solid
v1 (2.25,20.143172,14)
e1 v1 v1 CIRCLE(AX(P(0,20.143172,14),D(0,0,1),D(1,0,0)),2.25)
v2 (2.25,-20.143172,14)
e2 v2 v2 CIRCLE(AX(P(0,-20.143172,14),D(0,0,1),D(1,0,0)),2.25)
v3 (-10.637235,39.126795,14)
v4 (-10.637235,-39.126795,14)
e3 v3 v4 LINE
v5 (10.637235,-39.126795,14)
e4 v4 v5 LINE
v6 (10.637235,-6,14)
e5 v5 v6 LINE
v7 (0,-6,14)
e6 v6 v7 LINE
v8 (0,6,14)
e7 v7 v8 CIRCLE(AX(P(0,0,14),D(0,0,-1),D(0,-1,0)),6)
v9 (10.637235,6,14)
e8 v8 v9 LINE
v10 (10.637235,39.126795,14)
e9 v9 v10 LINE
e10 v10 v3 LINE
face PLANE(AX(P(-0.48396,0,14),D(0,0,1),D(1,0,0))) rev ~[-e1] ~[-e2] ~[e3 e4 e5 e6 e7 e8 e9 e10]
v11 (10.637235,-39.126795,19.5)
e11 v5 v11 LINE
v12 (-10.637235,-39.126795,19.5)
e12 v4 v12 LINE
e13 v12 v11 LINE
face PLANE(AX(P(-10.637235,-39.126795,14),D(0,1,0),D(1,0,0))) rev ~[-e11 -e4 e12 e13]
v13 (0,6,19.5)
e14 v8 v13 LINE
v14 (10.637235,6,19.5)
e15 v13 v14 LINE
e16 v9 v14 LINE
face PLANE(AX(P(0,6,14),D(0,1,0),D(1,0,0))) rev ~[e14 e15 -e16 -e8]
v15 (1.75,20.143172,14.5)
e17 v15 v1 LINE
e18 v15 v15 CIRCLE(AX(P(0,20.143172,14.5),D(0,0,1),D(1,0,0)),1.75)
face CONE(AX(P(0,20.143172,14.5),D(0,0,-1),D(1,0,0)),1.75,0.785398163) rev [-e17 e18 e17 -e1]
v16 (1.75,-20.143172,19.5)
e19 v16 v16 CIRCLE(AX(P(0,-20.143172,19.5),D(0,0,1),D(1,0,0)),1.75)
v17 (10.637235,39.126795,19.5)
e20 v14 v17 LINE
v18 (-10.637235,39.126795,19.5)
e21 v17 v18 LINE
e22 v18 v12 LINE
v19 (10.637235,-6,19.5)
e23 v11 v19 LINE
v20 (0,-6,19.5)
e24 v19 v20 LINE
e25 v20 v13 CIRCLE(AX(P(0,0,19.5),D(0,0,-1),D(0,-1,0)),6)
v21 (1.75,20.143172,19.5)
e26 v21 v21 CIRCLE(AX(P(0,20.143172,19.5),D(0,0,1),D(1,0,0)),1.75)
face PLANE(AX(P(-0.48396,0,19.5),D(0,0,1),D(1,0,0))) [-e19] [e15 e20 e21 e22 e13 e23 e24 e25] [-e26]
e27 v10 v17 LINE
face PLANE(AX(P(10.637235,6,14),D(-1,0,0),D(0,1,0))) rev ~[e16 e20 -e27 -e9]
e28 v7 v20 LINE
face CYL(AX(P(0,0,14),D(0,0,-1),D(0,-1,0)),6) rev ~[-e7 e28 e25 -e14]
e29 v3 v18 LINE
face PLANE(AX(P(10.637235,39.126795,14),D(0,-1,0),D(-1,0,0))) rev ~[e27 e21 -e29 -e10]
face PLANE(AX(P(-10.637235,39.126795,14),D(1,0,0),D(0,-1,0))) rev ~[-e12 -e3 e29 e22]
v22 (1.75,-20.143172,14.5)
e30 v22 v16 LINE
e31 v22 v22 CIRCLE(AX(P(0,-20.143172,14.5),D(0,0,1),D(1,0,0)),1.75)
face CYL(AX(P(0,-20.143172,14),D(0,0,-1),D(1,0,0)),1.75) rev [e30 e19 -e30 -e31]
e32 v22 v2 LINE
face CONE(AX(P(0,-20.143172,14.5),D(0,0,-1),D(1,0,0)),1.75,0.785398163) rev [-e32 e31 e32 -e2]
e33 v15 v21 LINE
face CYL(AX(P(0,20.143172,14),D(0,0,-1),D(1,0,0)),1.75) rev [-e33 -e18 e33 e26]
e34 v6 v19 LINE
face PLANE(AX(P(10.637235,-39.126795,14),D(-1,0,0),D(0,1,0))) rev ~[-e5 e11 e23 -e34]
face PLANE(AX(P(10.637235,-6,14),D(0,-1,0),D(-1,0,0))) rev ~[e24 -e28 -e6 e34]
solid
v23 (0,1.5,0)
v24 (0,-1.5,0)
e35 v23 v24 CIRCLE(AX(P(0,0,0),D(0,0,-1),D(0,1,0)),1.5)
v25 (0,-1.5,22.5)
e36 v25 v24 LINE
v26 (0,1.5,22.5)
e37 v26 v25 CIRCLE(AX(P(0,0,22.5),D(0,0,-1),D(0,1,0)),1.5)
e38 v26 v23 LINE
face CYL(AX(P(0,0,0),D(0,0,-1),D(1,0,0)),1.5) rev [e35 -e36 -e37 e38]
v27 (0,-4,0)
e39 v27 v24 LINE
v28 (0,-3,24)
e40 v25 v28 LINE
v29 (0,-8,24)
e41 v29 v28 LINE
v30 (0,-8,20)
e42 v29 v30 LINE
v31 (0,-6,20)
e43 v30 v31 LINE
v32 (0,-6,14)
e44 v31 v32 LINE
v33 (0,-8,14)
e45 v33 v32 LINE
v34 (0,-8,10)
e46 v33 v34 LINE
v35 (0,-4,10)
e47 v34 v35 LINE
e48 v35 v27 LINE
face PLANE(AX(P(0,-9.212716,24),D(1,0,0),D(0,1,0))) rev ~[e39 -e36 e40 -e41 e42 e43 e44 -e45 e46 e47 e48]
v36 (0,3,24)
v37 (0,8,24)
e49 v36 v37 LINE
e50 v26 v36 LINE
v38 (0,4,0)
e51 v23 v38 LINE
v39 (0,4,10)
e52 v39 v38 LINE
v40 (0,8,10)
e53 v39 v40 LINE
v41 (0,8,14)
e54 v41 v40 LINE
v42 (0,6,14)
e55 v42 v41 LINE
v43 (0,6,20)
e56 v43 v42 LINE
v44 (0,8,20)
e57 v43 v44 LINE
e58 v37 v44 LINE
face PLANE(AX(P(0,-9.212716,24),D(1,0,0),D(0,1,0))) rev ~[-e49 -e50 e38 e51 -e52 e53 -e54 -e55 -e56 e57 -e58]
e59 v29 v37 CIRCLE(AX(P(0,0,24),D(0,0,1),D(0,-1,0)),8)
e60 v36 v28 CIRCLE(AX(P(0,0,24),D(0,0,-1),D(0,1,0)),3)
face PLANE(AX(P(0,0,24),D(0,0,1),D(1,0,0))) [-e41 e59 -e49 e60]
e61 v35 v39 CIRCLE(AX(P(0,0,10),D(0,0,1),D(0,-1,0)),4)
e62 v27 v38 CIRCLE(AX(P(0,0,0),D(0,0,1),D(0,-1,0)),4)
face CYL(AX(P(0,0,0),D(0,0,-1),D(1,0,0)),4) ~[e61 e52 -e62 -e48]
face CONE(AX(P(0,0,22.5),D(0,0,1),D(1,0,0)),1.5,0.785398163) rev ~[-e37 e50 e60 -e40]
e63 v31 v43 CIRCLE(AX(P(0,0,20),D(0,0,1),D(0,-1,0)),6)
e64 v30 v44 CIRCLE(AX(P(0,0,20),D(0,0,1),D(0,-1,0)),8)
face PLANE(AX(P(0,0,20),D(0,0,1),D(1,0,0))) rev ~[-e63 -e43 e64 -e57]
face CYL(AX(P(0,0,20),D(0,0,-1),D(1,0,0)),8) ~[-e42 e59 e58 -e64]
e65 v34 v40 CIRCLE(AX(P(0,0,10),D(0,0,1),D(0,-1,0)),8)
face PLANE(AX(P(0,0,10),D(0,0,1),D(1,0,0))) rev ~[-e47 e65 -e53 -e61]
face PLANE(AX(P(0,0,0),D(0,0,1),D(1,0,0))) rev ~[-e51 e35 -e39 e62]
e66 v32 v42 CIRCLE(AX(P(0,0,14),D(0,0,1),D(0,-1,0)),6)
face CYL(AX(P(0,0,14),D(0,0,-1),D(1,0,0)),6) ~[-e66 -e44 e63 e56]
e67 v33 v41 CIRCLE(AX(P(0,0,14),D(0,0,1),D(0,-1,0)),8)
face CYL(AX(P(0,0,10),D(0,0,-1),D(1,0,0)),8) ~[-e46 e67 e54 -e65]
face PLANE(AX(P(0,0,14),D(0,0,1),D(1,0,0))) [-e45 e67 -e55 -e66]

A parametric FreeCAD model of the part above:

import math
import FreeCAD as App
import Part
import Sketcher


def edges_at(feature, points):
    """Names of the edges that pass closest to the given points."""
    edges = feature.Shape.Edges
    near = lambda p: min(range(len(edges)), key=lambda i: edges[i].distToShape(Part.Vertex(*p))[0])
    return sorted({f"Edge{near(p) + 1}" for p in points})

doc = App.newDocument("Part")
body = doc.addObject("PartDesign::Body", "Body")

sketch1 = body.newObject("Sketcher::SketchObject", "Sketch")
sketch1.AttachmentSupport = (doc.getObject("XY_Plane"), [""])
sketch1.MapMode = "FlatFace"
sketch1.addGeometry(Part.Circle(App.Vector(0, 0, 0), App.Vector(0, 0, 1), 4), False)
sketch1.addConstraint([
    Sketcher.Constraint("Coincident", 0, 3, -1, 1),
    Sketcher.Constraint("Diameter", 0, 8.0),
])
pad1 = body.newObject("PartDesign::Pad", "Pad")
pad1.Profile = sketch1
pad1.Length = 10

sketch2 = body.newObject("Sketcher::SketchObject", "Sketch001")
sketch2.AttachmentSupport = (doc.getObject("XY_Plane"), [""])
sketch2.MapMode = "FlatFace"
sketch2.AttachmentOffset = App.Placement(App.Vector(0, 0, 10), App.Rotation())
sketch2.addGeometry(Part.Circle(App.Vector(0, 0, 0), App.Vector(0, 0, 1), 8), False)
sketch2.addConstraint([
    Sketcher.Constraint("Coincident", 0, 3, -1, 1),
    Sketcher.Constraint("Diameter", 0, 16.0),
])
pad2 = body.newObject("PartDesign::Pad", "Pad001")
pad2.Profile = sketch2
pad2.Length = 4

sketch3 = body.newObject("Sketcher::SketchObject", "Sketch002")
sketch3.AttachmentSupport = (doc.getObject("XY_Plane"), [""])
sketch3.MapMode = "FlatFace"
sketch3.AttachmentOffset = App.Placement(App.Vector(0, 0, 14), App.Rotation())
sketch3.addGeometry(Part.Circle(App.Vector(0, 0, 0), App.Vector(0, 0, 1), 6), False)
sketch3.addConstraint([
    Sketcher.Constraint("Coincident", 0, 3, -1, 1),
    Sketcher.Constraint("Diameter", 0, 12.0),
])
pad3 = body.newObject("PartDesign::Pad", "Pad002")
pad3.Profile = sketch3
pad3.Length = 6

sketch4 = body.newObject("Sketcher::SketchObject", "Sketch003")
sketch4.AttachmentSupport = (doc.getObject("XY_Plane"), [""])
sketch4.MapMode = "FlatFace"
sketch4.AttachmentOffset = App.Placement(App.Vector(0, 0, 20), App.Rotation())
sketch4.addGeometry(Part.Circle(App.Vector(0, 0, 0), App.Vector(0, 0, 1), 8), False)
sketch4.addConstraint([
    Sketcher.Constraint("Coincident", 0, 3, -1, 1),
    Sketcher.Constraint("Diameter", 0, 16.0),
])
pad4 = body.newObject("PartDesign::Pad", "Pad003")
pad4.Profile = sketch4
pad4.Length = 4

sketch5 = body.newObject("Sketcher::SketchObject", "Sketch004")
sketch5.AttachmentSupport = (doc.getObject("XY_Plane"), [""])
sketch5.MapMode = "FlatFace"
sketch5.addGeometry(Part.Circle(App.Vector(0, 0, 0), App.Vector(0, 0, 1), 1.5), False)
sketch5.addConstraint([
    Sketcher.Constraint("Coincident", 0, 3, -1, 1),
    Sketcher.Constraint("Diameter", 0, 3.0),
])
pocket1 = body.newObject("PartDesign::Pocket", "Pocket")
pocket1.Profile = sketch5
pocket1.Type = "ThroughAll"
pocket1.Reversed = True
doc.recompute()

chamfer = body.newObject("PartDesign::Chamfer", "Chamfer")
chamfer.Base = (pocket1, edges_at(pocket1, [(-1.5, 0, 24)]))
chamfer.Size = 1.5
body2 = doc.addObject("PartDesign::Body", "Body001")

sketch6 = body2.newObject("Sketcher::SketchObject", "Sketch005")
sketch6.AttachmentSupport = (doc.getObject("XY_Plane001"), [""])
sketch6.MapMode = "FlatFace"
sketch6.AttachmentOffset = App.Placement(App.Vector(0, 0, 14), App.Rotation())
sketch6.addGeometry([
    Part.LineSegment(App.Vector(-10.6, 39.1, 0), App.Vector(-10.6, -39.1, 0)),
    Part.LineSegment(App.Vector(-10.6, -39.1, 0), App.Vector(10.6, -39.1, 0)),
    Part.LineSegment(App.Vector(10.6, -39.1, 0), App.Vector(10.6, -6, 0)),
    Part.LineSegment(App.Vector(10.6, -6, 0), App.Vector(0, -6, 0)),
    Part.ArcOfCircle(Part.Circle(App.Vector(0, 0, 0), App.Vector(0, 0, 1), 6), math.radians(90), math.radians(270)),
    Part.LineSegment(App.Vector(0, 6, 0), App.Vector(10.6, 6, 0)),
    Part.LineSegment(App.Vector(10.6, 6, 0), App.Vector(10.6, 39.1, 0)),
    Part.LineSegment(App.Vector(10.6, 39.1, 0), App.Vector(-10.6, 39.1, 0)),
    Part.Circle(App.Vector(0, -20.1, 0), App.Vector(0, 0, 1), 1.8),
    Part.Circle(App.Vector(0, 20.1, 0), App.Vector(0, 0, 1), 1.8),
], False)
sketch6.addConstraint([
    Sketcher.Constraint("Coincident", 0, 2, 1, 1),
    Sketcher.Constraint("Coincident", 1, 2, 2, 1),
    Sketcher.Constraint("Coincident", 2, 2, 3, 1),
    Sketcher.Constraint("Tangent", 3, 2, 4, 2),
    Sketcher.Constraint("Tangent", 4, 1, 5, 1),
    Sketcher.Constraint("Coincident", 5, 2, 6, 1),
    Sketcher.Constraint("Coincident", 6, 2, 7, 1),
    Sketcher.Constraint("Coincident", 7, 2, 0, 1),
    Sketcher.Constraint("Vertical", 0),
    Sketcher.Constraint("Horizontal", 1),
    Sketcher.Constraint("Vertical", 2),
    Sketcher.Constraint("Horizontal", 3),
    Sketcher.Constraint("Horizontal", 5),
    Sketcher.Constraint("Vertical", 6),
    Sketcher.Constraint("Horizontal", 7),
    Sketcher.Constraint("Coincident", 4, 3, -1, 1),
    Sketcher.Constraint("Equal", 8, 9),
    Sketcher.Constraint("Symmetric", 8, 3, 9, 3, -1, 1),
    Sketcher.Constraint("Symmetric", 0, 2, 6, 2, -1, 1),
    Sketcher.Constraint("PointOnObject", 8, 3, -2),
    Sketcher.Constraint("Vertical", 2, 2, 5, 2),
    Sketcher.Constraint("Radius", 4, 6.0),
    Sketcher.Constraint("Diameter", 8, 3.5),
    Sketcher.Constraint("DistanceX", 1, 1, 1, 2, 21.27447),
    Sketcher.Constraint("DistanceY", 0, 2, 0, 1, 78.25359),
    Sketcher.Constraint("DistanceY", 8, 3, -1, 1, 20.143172),
])
pad5 = body2.newObject("PartDesign::Pad", "Pad004")
pad5.Profile = sketch6
pad5.Length = 5.5
doc.recompute()

chamfer2 = body2.newObject("PartDesign::Chamfer", "Chamfer001")
chamfer2.Base = (pad5, edges_at(pad5, [(-1.75, 20.143, 14), (-1.75, -20.143, 14)]))
chamfer2.Size = 0.5
body3 = doc.addObject("PartDesign::Body", "Body002")

sketch7 = body3.newObject("Sketcher::SketchObject", "Sketch006")
sketch7.AttachmentSupport = (doc.getObject("XY_Plane002"), [""])
sketch7.MapMode = "FlatFace"
sketch7.AttachmentOffset = App.Placement(App.Vector(0, 0, 24), App.Rotation())
sketch7.addGeometry([
    Part.LineSegment(App.Vector(-9, 8, 0), App.Vector(-9, -9, 0)),
    Part.LineSegment(App.Vector(-9, -9, 0), App.Vector(0, -9, 0)),
    Part.LineSegment(App.Vector(0, -9, 0), App.Vector(0, 8, 0)),
    Part.LineSegment(App.Vector(0, 8, 0), App.Vector(-9, 8, 0)),
], False)
sketch7.addConstraint([
    Sketcher.Constraint("Coincident", 0, 2, 1, 1),
    Sketcher.Constraint("Coincident", 1, 2, 2, 1),
    Sketcher.Constraint("Coincident", 2, 2, 3, 1),
    Sketcher.Constraint("Coincident", 3, 2, 0, 1),
    Sketcher.Constraint("Vertical", 0),
    Sketcher.Constraint("Horizontal", 1),
    Sketcher.Constraint("Vertical", 2),
    Sketcher.Constraint("Horizontal", 3),
    Sketcher.Constraint("PointOnObject", 1, 2, -2),
    Sketcher.Constraint("DistanceY", -1, 1, 2, 2, 8.0),
    Sketcher.Constraint("DistanceX", 1, 1, 1, 2, 9.040671),
    Sketcher.Constraint("DistanceY", 0, 2, 0, 1, 17.212716),
])
pad6 = body3.newObject("PartDesign::Pad", "Pad005")
pad6.Profile = sketch7
pad6.Length = 24
pad6.Reversed = True
doc.recompute()

boolean = body.newObject("PartDesign::Boolean", "Boolean")
boolean.Type = "Cut"
boolean.addObjects([body3])

doc.recompute()
